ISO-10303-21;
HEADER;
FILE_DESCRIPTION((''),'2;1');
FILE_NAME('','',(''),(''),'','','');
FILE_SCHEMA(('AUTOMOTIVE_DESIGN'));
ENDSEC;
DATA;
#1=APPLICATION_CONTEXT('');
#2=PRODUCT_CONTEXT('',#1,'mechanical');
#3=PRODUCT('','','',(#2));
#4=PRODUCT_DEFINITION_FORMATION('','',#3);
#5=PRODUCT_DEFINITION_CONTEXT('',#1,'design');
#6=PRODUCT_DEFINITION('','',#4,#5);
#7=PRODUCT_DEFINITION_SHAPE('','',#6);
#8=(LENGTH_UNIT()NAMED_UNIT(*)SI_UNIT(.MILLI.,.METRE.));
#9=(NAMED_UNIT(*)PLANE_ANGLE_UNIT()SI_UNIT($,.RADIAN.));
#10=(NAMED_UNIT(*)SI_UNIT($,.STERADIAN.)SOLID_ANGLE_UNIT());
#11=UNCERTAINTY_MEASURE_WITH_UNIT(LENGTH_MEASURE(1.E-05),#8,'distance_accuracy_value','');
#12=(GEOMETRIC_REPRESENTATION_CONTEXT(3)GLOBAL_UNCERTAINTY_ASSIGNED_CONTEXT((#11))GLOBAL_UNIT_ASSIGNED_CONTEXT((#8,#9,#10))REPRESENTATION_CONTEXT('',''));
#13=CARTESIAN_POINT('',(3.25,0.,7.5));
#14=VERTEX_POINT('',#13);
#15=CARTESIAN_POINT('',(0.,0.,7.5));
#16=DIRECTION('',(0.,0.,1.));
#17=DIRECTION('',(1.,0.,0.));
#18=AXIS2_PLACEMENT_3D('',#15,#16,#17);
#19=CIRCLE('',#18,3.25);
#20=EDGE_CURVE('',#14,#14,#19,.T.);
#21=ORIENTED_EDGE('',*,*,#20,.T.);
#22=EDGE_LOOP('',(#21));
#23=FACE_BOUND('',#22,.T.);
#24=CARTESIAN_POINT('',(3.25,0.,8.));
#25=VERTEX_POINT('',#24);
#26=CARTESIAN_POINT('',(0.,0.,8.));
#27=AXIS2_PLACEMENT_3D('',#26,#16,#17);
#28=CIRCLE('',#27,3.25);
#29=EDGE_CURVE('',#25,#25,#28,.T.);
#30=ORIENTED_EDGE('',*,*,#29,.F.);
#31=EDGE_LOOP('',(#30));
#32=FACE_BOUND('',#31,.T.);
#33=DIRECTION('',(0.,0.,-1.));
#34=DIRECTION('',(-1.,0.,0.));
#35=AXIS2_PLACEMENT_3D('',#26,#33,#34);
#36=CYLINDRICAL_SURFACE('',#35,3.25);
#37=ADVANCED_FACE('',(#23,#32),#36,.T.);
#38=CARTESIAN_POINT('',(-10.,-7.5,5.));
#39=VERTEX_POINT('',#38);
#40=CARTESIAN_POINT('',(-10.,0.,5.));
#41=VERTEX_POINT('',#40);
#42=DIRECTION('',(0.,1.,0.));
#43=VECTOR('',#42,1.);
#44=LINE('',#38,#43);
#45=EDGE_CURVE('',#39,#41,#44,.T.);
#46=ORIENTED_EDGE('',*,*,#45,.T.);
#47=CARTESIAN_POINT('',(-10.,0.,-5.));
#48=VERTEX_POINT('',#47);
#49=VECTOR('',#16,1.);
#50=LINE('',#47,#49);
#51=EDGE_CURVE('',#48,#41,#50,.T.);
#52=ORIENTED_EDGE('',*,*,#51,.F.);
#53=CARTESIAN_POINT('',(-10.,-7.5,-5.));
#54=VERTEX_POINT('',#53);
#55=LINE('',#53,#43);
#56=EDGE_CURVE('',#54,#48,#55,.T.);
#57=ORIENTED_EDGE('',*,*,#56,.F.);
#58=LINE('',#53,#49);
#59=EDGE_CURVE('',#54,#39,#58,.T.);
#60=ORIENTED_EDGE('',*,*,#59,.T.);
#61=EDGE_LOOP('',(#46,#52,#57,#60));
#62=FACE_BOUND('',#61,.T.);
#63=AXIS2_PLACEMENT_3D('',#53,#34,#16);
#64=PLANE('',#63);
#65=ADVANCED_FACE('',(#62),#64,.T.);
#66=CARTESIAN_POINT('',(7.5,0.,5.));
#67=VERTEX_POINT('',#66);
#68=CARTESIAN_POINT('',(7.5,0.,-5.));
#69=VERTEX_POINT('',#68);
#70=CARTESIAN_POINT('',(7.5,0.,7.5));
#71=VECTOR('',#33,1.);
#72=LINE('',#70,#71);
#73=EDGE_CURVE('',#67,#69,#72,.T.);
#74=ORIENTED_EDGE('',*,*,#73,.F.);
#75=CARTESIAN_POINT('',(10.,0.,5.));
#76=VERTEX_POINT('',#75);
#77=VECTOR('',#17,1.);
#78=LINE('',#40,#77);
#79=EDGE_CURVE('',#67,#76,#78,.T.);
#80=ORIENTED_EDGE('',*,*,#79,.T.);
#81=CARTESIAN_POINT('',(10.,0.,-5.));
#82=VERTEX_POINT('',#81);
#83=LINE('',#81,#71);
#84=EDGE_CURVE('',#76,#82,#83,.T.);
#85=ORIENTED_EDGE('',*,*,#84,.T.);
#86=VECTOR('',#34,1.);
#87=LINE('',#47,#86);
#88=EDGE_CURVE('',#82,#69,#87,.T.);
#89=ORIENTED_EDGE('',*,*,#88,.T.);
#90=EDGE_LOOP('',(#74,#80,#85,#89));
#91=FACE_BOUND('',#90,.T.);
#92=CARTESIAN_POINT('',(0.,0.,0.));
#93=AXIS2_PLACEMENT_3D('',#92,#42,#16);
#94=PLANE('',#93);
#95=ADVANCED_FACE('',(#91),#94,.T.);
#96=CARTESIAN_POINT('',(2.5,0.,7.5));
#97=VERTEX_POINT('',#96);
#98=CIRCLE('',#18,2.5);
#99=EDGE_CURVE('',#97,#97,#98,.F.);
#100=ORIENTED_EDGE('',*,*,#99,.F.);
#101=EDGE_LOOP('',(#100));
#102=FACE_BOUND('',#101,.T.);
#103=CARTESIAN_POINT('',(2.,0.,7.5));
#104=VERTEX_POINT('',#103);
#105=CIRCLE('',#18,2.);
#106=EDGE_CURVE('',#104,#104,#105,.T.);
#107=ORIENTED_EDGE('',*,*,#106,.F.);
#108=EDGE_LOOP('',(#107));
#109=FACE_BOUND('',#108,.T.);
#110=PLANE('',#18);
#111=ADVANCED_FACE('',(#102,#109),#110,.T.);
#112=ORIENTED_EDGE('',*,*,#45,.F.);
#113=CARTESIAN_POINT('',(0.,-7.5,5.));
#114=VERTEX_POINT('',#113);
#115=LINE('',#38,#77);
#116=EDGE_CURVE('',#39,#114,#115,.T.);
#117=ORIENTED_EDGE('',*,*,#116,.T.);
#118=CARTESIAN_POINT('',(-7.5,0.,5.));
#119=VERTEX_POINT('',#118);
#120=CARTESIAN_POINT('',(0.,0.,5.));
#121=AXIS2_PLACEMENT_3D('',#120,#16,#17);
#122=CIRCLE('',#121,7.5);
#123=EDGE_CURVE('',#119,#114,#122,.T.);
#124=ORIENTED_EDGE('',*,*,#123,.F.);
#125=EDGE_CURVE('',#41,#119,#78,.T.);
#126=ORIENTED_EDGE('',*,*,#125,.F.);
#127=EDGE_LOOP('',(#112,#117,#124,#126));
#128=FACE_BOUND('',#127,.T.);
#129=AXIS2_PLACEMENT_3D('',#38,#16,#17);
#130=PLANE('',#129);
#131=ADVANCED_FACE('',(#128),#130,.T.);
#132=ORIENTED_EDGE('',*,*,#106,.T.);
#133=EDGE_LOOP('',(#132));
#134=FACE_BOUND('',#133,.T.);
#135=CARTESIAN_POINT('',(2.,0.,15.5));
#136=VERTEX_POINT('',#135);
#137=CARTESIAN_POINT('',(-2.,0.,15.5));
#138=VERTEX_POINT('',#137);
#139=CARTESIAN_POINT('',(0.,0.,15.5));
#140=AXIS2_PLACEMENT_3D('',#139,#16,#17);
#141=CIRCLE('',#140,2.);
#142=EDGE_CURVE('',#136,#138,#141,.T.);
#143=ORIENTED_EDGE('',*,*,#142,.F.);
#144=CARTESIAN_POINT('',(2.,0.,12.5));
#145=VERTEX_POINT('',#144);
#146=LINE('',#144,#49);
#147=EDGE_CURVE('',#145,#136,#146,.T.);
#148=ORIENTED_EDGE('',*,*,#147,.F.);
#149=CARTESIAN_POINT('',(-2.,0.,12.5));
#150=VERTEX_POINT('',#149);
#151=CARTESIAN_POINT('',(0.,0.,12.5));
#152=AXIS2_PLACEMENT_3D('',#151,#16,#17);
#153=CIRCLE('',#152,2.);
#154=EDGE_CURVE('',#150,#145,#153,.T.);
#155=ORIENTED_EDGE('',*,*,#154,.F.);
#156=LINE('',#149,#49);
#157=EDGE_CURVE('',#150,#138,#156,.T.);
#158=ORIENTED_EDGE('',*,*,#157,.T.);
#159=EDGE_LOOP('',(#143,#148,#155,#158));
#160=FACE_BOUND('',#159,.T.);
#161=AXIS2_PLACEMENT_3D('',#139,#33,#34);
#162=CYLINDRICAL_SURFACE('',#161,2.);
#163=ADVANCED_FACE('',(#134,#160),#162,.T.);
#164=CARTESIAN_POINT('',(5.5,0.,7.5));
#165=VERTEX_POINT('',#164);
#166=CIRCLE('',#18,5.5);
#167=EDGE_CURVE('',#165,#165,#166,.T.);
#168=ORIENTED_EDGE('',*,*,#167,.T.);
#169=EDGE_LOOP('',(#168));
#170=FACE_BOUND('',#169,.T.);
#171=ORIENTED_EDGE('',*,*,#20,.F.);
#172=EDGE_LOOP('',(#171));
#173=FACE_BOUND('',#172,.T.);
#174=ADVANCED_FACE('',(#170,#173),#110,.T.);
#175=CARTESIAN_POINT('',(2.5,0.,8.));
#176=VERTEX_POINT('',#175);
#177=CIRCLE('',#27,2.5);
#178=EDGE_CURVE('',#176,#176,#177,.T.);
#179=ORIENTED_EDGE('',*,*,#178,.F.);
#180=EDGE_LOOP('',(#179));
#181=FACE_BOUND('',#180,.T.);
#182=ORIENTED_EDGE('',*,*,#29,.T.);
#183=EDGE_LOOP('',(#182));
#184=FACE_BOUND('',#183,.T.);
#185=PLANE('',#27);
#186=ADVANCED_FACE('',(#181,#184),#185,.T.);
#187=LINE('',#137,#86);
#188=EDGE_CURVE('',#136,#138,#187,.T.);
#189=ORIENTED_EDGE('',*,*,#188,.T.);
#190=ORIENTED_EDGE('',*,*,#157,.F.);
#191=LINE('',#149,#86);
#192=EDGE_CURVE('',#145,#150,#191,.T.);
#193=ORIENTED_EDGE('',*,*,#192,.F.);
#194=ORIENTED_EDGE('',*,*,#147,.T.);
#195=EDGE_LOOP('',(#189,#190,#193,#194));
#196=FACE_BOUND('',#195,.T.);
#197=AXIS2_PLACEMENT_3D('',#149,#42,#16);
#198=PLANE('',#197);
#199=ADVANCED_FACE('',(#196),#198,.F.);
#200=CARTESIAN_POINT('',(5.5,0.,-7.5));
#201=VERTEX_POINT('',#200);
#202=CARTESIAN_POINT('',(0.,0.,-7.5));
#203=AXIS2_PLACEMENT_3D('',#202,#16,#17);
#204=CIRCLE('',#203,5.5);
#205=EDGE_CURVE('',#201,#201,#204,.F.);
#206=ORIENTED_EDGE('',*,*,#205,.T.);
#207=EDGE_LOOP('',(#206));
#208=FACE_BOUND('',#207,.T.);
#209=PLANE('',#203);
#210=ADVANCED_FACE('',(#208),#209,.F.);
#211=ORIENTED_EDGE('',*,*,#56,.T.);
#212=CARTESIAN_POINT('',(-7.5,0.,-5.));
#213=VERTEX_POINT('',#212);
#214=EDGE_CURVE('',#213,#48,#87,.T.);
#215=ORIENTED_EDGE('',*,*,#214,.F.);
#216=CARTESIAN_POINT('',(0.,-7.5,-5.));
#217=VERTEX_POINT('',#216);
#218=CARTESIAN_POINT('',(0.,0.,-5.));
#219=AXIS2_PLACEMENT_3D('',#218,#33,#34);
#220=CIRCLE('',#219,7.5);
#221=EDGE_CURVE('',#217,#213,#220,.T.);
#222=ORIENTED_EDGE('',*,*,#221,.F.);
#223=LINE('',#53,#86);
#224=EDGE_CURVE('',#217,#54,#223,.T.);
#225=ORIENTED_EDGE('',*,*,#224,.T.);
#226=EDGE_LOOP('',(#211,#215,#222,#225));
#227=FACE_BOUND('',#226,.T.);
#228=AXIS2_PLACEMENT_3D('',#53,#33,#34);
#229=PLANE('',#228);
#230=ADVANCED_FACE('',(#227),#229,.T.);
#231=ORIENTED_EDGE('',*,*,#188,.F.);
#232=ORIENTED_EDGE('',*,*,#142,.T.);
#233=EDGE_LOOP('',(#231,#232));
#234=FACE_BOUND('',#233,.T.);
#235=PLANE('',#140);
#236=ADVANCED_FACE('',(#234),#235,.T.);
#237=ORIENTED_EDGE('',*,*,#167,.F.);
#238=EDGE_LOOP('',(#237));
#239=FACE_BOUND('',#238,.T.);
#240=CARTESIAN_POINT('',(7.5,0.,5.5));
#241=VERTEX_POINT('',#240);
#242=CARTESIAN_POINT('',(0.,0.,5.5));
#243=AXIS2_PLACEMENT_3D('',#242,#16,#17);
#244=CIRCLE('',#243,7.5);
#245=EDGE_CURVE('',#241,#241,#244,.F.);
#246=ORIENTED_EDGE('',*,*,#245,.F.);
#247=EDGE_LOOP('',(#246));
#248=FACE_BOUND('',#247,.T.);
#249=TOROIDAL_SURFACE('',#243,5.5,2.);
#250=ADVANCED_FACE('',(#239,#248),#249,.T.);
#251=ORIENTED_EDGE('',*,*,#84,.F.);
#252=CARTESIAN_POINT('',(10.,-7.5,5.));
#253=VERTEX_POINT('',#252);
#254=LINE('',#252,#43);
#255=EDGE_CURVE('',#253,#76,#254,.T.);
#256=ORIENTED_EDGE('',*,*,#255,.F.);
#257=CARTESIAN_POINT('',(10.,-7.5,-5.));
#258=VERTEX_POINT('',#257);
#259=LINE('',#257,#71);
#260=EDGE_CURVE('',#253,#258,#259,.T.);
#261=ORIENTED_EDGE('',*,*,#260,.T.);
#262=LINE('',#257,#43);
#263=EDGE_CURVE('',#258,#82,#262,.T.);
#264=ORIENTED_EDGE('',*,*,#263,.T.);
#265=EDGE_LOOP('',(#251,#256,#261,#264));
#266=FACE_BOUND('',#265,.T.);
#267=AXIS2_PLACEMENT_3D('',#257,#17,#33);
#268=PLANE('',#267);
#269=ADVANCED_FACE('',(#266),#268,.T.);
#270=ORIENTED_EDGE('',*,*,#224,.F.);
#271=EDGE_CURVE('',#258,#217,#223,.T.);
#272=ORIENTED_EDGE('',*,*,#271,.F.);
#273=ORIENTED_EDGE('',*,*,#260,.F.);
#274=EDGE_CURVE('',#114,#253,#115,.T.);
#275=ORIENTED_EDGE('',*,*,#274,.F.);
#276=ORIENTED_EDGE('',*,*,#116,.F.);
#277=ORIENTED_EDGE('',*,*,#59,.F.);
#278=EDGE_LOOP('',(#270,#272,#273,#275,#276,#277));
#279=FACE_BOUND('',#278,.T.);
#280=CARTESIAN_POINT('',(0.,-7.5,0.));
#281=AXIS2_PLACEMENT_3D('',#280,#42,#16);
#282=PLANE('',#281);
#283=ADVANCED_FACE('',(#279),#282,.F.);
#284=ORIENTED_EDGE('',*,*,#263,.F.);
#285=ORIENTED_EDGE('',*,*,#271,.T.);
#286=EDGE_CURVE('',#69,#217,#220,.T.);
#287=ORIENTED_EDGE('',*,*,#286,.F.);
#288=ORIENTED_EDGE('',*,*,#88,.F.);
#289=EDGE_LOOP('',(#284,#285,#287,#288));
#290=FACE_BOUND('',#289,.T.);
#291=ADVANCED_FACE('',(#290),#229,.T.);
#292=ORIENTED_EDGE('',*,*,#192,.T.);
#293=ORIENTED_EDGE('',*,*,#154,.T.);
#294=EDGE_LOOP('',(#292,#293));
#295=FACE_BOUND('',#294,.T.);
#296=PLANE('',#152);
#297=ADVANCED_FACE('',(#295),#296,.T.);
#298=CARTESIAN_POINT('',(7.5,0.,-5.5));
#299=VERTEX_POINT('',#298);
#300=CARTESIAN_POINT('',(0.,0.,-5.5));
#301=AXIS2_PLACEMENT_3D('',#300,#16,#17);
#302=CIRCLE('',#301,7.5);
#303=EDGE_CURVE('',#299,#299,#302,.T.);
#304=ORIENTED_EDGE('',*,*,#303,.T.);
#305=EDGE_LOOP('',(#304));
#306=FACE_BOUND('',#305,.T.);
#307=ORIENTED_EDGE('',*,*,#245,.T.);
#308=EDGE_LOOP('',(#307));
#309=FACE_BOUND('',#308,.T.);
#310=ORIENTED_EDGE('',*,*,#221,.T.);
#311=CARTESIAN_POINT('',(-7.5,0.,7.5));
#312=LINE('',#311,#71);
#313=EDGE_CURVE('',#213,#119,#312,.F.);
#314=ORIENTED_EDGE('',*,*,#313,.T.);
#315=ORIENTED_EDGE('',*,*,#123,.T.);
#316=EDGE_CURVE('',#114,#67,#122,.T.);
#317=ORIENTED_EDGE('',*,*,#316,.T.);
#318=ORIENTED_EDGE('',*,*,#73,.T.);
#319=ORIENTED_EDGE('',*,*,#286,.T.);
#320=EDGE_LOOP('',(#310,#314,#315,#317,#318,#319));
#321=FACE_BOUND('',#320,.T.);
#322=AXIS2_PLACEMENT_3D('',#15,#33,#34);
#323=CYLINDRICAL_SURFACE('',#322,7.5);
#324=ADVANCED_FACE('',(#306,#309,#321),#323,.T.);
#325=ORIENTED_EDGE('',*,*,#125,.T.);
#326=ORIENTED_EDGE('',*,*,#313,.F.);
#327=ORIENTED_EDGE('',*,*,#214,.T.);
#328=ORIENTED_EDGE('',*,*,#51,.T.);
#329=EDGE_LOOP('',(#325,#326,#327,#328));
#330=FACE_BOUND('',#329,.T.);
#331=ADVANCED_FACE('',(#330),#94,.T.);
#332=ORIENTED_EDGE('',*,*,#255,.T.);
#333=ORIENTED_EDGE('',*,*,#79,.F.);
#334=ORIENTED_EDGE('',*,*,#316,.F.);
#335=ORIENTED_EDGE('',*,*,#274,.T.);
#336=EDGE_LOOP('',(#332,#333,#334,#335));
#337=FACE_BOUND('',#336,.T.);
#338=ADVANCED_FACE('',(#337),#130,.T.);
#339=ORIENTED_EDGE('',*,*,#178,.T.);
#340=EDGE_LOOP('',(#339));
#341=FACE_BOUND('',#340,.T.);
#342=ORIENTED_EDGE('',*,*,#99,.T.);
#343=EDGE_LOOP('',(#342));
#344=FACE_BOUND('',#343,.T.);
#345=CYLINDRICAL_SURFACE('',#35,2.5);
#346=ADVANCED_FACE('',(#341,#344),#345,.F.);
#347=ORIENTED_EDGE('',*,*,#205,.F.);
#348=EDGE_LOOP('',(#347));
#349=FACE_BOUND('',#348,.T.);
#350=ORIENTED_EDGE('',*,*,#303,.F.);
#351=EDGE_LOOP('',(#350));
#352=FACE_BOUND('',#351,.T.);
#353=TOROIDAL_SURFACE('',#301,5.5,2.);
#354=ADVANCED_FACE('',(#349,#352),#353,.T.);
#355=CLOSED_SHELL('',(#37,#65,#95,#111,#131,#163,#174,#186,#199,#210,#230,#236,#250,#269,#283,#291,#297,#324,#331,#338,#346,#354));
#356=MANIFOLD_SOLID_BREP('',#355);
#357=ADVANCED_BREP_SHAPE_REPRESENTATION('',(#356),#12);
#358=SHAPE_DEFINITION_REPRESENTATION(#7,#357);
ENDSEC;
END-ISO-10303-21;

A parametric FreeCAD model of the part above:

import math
import FreeCAD as App
import Part
import Sketcher
Q = App.Units.Quantity


def edges_at(feature, points):
    """Names of the edges that pass closest to the given points."""
    edges = feature.Shape.Edges
    near = lambda p: min(range(len(edges)), key=lambda i: edges[i].distToShape(Part.Vertex(*p))[0])
    return sorted({f"Edge{near(p) + 1}" for p in points})

doc = App.newDocument("Part")
body = doc.addObject("PartDesign::Body", "Body")

# Sketch on XY plane
sketch1 = doc.addObject("Sketcher::SketchObject", "Sketch")
body.addObject(sketch1)
sketch1.AttachmentSupport = (doc.XY_Plane, [""])
sketch1.MapMode = "FlatFace"
sketch1.addGeometry(Part.Circle(App.Vector(0, 0, 0), App.Vector(0, 0, 1), 7.5), False)
sketch1.addConstraint([
    Sketcher.Constraint("Coincident", 0, 3, -1, 1),
    Sketcher.Constraint("Diameter", 0, Q("15 mm")),
])
pad1 = doc.addObject("PartDesign::Pad", "Pad")
body.addObject(pad1)
pad1.Profile = sketch1
pad1.Length = 15
pad1.Midplane = True

# Sketch on XY plane
sketch2 = doc.addObject("Sketcher::SketchObject", "Sketch001")
body.addObject(sketch2)
sketch2.AttachmentSupport = (doc.XY_Plane, [""])
sketch2.MapMode = "FlatFace"
sketch2.AttachmentOffset = App.Placement(App.Vector(0, 0, 7.5), App.Rotation())
sketch2.addGeometry([
    Part.Circle(App.Vector(0, 0, 0), App.Vector(0, 0, 1), 3.25),
    Part.Circle(App.Vector(0, 0, 0), App.Vector(0, 0, 1), 2.5),
], False)
sketch2.addConstraint([
    Sketcher.Constraint("Coincident", 0, 3, -1, 1),
    Sketcher.Constraint("Coincident", 1, 3, -1, 1),
    Sketcher.Constraint("Diameter", 1, Q("5 mm")),
    Sketcher.Constraint("Diameter", 0, Q("6.5 mm")),
])
pad2 = doc.addObject("PartDesign::Pad", "Pad001")
body.addObject(pad2)
pad2.Profile = sketch2
pad2.Length = 0.5

# Sketch on XY plane
sketch3 = doc.addObject("Sketcher::SketchObject", "Sketch002")
body.addObject(sketch3)
sketch3.AttachmentSupport = (doc.XY_Plane, [""])
sketch3.MapMode = "FlatFace"
sketch3.AttachmentOffset = App.Placement(App.Vector(0, 0, 7.5), App.Rotation())
sketch3.addGeometry(Part.Circle(App.Vector(0, 0, 0), App.Vector(0, 0, 1), 2), False)
sketch3.addConstraint([
    Sketcher.Constraint("Coincident", 0, 3, -1, 1),
    Sketcher.Constraint("Diameter", 0, Q("4 mm")),
])
pad3 = doc.addObject("PartDesign::Pad", "Pad002")
body.addObject(pad3)
pad3.Profile = sketch3
pad3.Length = 8

# Sketch on XY plane
sketch4 = doc.addObject("Sketcher::SketchObject", "Sketch003")
body.addObject(sketch4)
sketch4.AttachmentSupport = (doc.XY_Plane, [""])
sketch4.MapMode = "FlatFace"
sketch4.AttachmentOffset = App.Placement(App.Vector(0, 0, 12.5), App.Rotation())
sketch4.addGeometry([
    Part.LineSegment(App.Vector(2, 0, 0), App.Vector(-2, 0, 0)),
    Part.ArcOfCircle(Part.Circle(App.Vector(0, 0, 0), App.Vector(0, 0, 1), 2), math.radians(180), math.radians(360)),
], False)
sketch4.addConstraint([
    Sketcher.Constraint("Coincident", 0, 1, 1, 2),
    Sketcher.Constraint("Coincident", 1, 1, 0, 2),
    Sketcher.Constraint("Horizontal", 0),
    Sketcher.Constraint("Coincident", 1, 3, -1, 1),
    Sketcher.Constraint("PointOnObject", 0, 1, -1),
    Sketcher.Constraint("Radius", 1, Q("2 mm")),
])
pocket1 = doc.addObject("PartDesign::Pocket", "Pocket")
body.addObject(pocket1)
pocket1.Profile = sketch4
pocket1.Length = 3
pocket1.Reversed = True

# Sketch on XZ plane
sketch5 = doc.addObject("Sketcher::SketchObject", "Sketch004")
body.addObject(sketch5)
sketch5.AttachmentSupport = (doc.XZ_Plane, [""])
sketch5.MapMode = "FlatFace"
sketch5.addGeometry([
    Part.LineSegment(App.Vector(-10, -5, 0), App.Vector(-10, 5, 0)),
    Part.LineSegment(App.Vector(-10, 5, 0), App.Vector(10, 5, 0)),
    Part.LineSegment(App.Vector(10, 5, 0), App.Vector(10, -5, 0)),
    Part.LineSegment(App.Vector(10, -5, 0), App.Vector(-10, -5, 0)),
], False)
sketch5.addConstraint([
    Sketcher.Constraint("Coincident", 0, 2, 1, 1),
    Sketcher.Constraint("Coincident", 1, 2, 2, 1),
    Sketcher.Constraint("Coincident", 2, 2, 3, 1),
    Sketcher.Constraint("Coincident", 3, 2, 0, 1),
    Sketcher.Constraint("Vertical", 0),
    Sketcher.Constraint("Horizontal", 1),
    Sketcher.Constraint("Vertical", 2),
    Sketcher.Constraint("Horizontal", 3),
    Sketcher.Constraint("Symmetric", 0, 2, 2, 2, -1, 1),
    Sketcher.Constraint("DistanceX", 1, 1, 1, 2, Q("20 mm")),
    Sketcher.Constraint("DistanceY", 0, 1, 0, 2, Q("10 mm")),
])
pad4 = doc.addObject("PartDesign::Pad", "Pad003")
body.addObject(pad4)
pad4.Profile = sketch5
pad4.Length = 7.5
doc.recompute()

fillet = doc.addObject("PartDesign::Fillet", "Fillet")
body.addObject(fillet)
fillet.Base = (pad4, edges_at(pad4, [(-7.5, 0, -7.5), (-7.5, 0, 7.5)]))
fillet.Radius = 2

doc.recompute()
